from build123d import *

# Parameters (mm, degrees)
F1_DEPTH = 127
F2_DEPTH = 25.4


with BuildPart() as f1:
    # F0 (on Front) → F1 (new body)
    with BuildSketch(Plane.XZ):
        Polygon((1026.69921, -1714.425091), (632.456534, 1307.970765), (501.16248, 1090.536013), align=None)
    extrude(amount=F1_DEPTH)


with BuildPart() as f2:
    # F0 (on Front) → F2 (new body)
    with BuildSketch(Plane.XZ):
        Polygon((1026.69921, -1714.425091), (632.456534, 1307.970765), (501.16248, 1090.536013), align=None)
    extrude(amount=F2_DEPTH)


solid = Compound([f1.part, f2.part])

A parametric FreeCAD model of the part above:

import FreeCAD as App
import Part
import Sketcher
from FreeCAD import Vector
Q = App.Units.Quantity


def add_polygon(sketch, points):
    """Adds a closed chain of lines whose ends are joined by coincident constraints."""
    first, n = sketch.GeometryCount, len(points)
    for a, b in zip(points, points[1:] + points[:1]):
        sketch.addGeometry(Part.LineSegment(App.Vector(*a, 0), App.Vector(*b, 0)), False)
    for i in range(n):
        sketch.addConstraint(Sketcher.Constraint("Coincident", first + i, 2, first + (i + 1) % n, 1))

doc = App.newDocument("Part")
body = doc.addObject("PartDesign::Body", "Body")

sketch1 = body.newObject("Sketcher::SketchObject", "Sketch")
sketch1.AttachmentSupport = (doc.getObject("XZ_Plane"), [""])
sketch1.MapMode = "FlatFace"
add_polygon(sketch1, [(1026.69921, -1714.425091), (632.456534, 1307.970765), (501.16248, 1090.536013)])
sketch1.addConstraint(Sketcher.Constraint("Distance", 0, Q("120 in")))
sketch1.addConstraint(Sketcher.Constraint("Distance", 1, Q("10 in")))
sketch1.addConstraint(Sketcher.Constraint("DistanceX", -1, 1, 1, 2, Q("501.16248 mm")))
sketch1.addConstraint(Sketcher.Constraint("DistanceX", -1, 1, 2, 2, Q("1026.69921 mm")))
sketch1.addConstraint(Sketcher.Constraint("DistanceY", 2, 2, -1, 1, Q("1714.425091 mm")))
sketch1.addConstraint(Sketcher.Constraint("Distance", 2, Q("2853.768675 mm")))
pad1 = body.newObject("PartDesign::Pad", "Pad")
pad1.Profile = sketch1
pad1.Length = Q("5 in")
body2 = doc.addObject("PartDesign::Body", "Body001")

sketch2 = body2.newObject("Sketcher::SketchObject", "Sketch001")
sketch2.AttachmentSupport = (doc.getObject("XZ_Plane001"), [""])
sketch2.MapMode = "FlatFace"
add_polygon(sketch2, [(1026.69921, -1714.425091), (632.456534, 1307.970765), (501.16248, 1090.536013)])
sketch2.addConstraint(Sketcher.Constraint("Distance", 0, Q("120 in")))
sketch2.addConstraint(Sketcher.Constraint("Distance", 1, Q("10 in")))
sketch2.addConstraint(Sketcher.Constraint("DistanceX", -1, 1, 1, 2, Q("501.16248 mm")))
sketch2.addConstraint(Sketcher.Constraint("DistanceX", -1, 1, 2, 2, Q("1026.69921 mm")))
sketch2.addConstraint(Sketcher.Constraint("DistanceY", 2, 2, -1, 1, Q("1714.425091 mm")))
sketch2.addConstraint(Sketcher.Constraint("Distance", 2, Q("2853.768675 mm")))
pad2 = body2.newObject("PartDesign::Pad", "Pad001")
pad2.Profile = sketch2
pad2.Length = Q("1 in")

doc.recompute()
